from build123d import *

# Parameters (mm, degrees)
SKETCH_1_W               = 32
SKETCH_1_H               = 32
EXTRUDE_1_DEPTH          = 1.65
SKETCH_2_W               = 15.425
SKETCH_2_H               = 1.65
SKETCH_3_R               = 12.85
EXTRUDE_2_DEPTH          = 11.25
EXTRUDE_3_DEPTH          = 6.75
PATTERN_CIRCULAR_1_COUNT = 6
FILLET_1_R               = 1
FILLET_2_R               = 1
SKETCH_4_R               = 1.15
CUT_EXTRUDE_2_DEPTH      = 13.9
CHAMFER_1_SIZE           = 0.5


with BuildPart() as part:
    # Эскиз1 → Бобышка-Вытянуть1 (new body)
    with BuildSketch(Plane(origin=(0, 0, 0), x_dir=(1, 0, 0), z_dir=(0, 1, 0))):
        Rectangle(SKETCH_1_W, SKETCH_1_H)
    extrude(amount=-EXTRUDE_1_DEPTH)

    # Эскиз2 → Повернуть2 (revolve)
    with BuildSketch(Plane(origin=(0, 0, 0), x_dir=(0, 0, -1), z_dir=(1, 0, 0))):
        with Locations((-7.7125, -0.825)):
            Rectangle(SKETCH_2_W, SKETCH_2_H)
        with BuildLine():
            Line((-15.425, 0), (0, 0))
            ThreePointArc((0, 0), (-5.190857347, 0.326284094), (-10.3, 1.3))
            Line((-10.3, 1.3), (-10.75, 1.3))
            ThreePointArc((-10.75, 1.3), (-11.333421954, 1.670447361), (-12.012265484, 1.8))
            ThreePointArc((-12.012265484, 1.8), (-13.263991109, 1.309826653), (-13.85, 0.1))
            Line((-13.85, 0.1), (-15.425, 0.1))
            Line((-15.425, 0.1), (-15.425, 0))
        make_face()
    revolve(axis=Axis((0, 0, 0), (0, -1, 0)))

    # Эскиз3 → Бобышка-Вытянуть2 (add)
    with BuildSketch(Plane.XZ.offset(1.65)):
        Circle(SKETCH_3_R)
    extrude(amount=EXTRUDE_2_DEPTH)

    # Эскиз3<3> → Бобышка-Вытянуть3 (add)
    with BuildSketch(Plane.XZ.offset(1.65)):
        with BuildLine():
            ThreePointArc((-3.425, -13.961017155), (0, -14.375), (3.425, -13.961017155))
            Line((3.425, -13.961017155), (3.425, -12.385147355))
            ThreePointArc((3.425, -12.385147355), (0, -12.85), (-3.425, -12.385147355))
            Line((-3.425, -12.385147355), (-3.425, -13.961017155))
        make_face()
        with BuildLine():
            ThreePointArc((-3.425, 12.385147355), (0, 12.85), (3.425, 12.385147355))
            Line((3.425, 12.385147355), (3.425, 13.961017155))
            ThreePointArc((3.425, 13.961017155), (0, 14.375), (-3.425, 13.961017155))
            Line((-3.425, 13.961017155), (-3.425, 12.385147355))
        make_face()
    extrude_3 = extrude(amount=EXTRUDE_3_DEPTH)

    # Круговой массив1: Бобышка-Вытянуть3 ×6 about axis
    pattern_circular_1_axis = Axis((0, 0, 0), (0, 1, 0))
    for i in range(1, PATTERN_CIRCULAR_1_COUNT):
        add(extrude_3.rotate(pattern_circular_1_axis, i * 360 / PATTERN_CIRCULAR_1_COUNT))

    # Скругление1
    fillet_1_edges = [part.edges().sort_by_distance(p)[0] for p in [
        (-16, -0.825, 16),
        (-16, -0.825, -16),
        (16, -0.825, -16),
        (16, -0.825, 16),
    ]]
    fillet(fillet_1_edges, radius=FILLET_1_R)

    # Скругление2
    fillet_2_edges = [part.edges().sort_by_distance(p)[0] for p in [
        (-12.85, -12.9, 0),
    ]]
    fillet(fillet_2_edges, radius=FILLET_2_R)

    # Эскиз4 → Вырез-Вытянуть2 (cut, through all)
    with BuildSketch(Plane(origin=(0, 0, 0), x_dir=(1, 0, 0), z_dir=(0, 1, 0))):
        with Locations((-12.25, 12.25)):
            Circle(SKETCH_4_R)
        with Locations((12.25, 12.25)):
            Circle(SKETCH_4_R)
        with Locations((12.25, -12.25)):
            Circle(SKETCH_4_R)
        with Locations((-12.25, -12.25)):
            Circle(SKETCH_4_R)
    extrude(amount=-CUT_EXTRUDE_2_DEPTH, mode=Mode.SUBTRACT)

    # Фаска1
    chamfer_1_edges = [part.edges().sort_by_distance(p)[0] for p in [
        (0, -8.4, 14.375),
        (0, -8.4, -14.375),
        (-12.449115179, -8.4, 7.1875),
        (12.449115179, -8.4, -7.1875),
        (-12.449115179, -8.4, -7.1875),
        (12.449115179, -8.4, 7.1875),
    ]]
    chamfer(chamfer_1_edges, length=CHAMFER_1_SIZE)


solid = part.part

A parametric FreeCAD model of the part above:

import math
import FreeCAD as App
import Part
import Sketcher


def edges_at(feature, points):
    """Names of the edges that pass closest to the given points."""
    edges = feature.Shape.Edges
    near = lambda p: min(range(len(edges)), key=lambda i: edges[i].distToShape(Part.Vertex(*p))[0])
    return sorted({f"Edge{near(p) + 1}" for p in points})


def add_polygon(sketch, points):
    """Adds a closed chain of lines whose ends are joined by coincident constraints."""
    first, n = sketch.GeometryCount, len(points)
    for a, b in zip(points, points[1:] + points[:1]):
        sketch.addGeometry(Part.LineSegment(App.Vector(*a, 0), App.Vector(*b, 0)), False)
    for i in range(n):
        sketch.addConstraint(Sketcher.Constraint("Coincident", first + i, 2, first + (i + 1) % n, 1))

doc = App.newDocument("Part")
params = doc.addObject("Spreadsheet::Sheet", "Params")
for row, (alias, value) in enumerate([
    ("sketch1_width", "32 mm"),
    ("pad1_length", "1.65 mm"),
    ("sketch2_width", "1.65 mm"),
    ("sketch2_width2", "1.75 mm"),
    ("sketch2_height", "0.45 mm"),
    ("revolution_angle", "360 deg"),
    ("sketch3_diameter", "25.7 mm"),
    ("pad2_length", "11.25 mm"),
    ("sketch4_radius", "12.85 mm"),
    ("pad3_length", "6.75 mm"),
    ("fillet_radius", "1 mm"),
    ("fillet2_radius", "1 mm"),
    ("sketch5_diameter", "2.3 mm"),
    ("chamfer_size", "0.5 mm"),
], start=1):
    params.set(f"A{row}", alias)
    params.set(f"B{row}", "=" + value)
    params.setAlias(f"B{row}", alias)

body = doc.addObject("PartDesign::Body", "Body")

# Sketch on XZ plane
sketch1 = body.newObject("Sketcher::SketchObject", "Sketch")
sketch1.AttachmentSupport = (doc.getObject("XZ_Plane"), [""])
sketch1.MapMode = "FlatFace"
add_polygon(sketch1, [(-16, -16), (-16, 16), (16, 16), (16, -16)])  # lines 0-3
sketch1.addConstraint([
    Sketcher.Constraint("Vertical", 0),
    Sketcher.Constraint("Horizontal", 1),
    Sketcher.Constraint("Vertical", 2),
    Sketcher.Constraint("Horizontal", 3),
    Sketcher.Constraint("Symmetric", 0, 2, 2, 2, -1, 1),
    Sketcher.Constraint("Equal", 3, 0),
    Sketcher.Constraint("DistanceX", 1, 1, 1, 2, 32.0),
])
sketch1.setExpression("Constraints[10]", "Params.sketch1_width")
pad1 = body.newObject("PartDesign::Pad", "Pad")
pad1.Profile = sketch1
pad1.setExpression("Length", "Params.pad1_length")

# Sketch on YZ plane
sketch2 = body.newObject("Sketcher::SketchObject", "Sketch001")
sketch2.AttachmentSupport = (doc.getObject("YZ_Plane"), [""])
sketch2.MapMode = "FlatFace"
sketch2.addGeometry([
    Part.LineSegment(App.Vector(-1.65, 15.43, 0), App.Vector(-1.65, 0, 0)),  # 0
    Part.LineSegment(App.Vector(-1.65, 0, 0), App.Vector(0, 0, 0)),  # 1
    Part.ArcOfCircle(Part.Circle(App.Vector(41.45, 0, 0), App.Vector(0, 0, 1), 41.45), math.radians(165.61), math.radians(180)),  # 2
    Part.LineSegment(App.Vector(1.3, 10.3, 0), App.Vector(1.3, 10.75, 0)),  # 3
    Part.ArcOfCircle(Part.Circle(App.Vector(-0.04, 12.01, 0), App.Vector(0, 0, 1), 1.84), math.radians(-43), math.radians(0)),  # 4
    Part.ArcOfCircle(Part.Circle(App.Vector(-0.04, 12.01, 0), App.Vector(0, 0, 1), 1.84), math.radians(0), math.radians(86)),  # 5
    Part.LineSegment(App.Vector(0.1, 13.85, 0), App.Vector(0.1, 15.43, 0)),  # 6
    Part.LineSegment(App.Vector(0.1, 15.43, 0), App.Vector(-1.65, 15.43, 0)),  # 7
], False)
sketch2.addConstraint([
    Sketcher.Constraint("Coincident", 0, 2, 1, 1),
    Sketcher.Constraint("Coincident", 1, 2, 2, 2),
    Sketcher.Constraint("Coincident", 2, 1, 3, 1),
    Sketcher.Constraint("Coincident", 3, 2, 4, 1),
    Sketcher.Constraint("Tangent", 4, 2, 5, 1),
    Sketcher.Constraint("Coincident", 5, 2, 6, 1),
    Sketcher.Constraint("Coincident", 6, 2, 7, 1),
    Sketcher.Constraint("Coincident", 7, 2, 0, 1),
    Sketcher.Constraint("Vertical", 0),
    Sketcher.Constraint("Horizontal", 1),
    Sketcher.Constraint("Vertical", 3),
    Sketcher.Constraint("Vertical", 6),
    Sketcher.Constraint("Horizontal", 7),
    Sketcher.Constraint("Coincident", 1, 2, -1, 1),
    Sketcher.Constraint("Equal", 4, 5),
    Sketcher.Constraint("PointOnObject", 2, 3, -1),
    Sketcher.Constraint("Horizontal", 5, 3, 4, 2),
    Sketcher.Constraint("DistanceX", 1, 1, 1, 2, 1.65),
    Sketcher.Constraint("DistanceX", 7, 2, 7, 1, 1.75),
    Sketcher.Constraint("DistanceY", 3, 1, 3, 2, 0.45),
    Sketcher.Constraint("DistanceX", -1, 1, 2, 1, 1.3),
    Sketcher.Constraint("DistanceY", -1, 1, 2, 1, 10.3),
    Sketcher.Constraint("DistanceX", -1, 1, 4, 2, 1.8),
    Sketcher.Constraint("DistanceY", 3, 2, 5, 2, 3.1),
    Sketcher.Constraint("DistanceY", 0, 2, 0, 1, 15.425),
])
sketch2.setExpression("Constraints[17]", "Params.sketch2_width")
sketch2.setExpression("Constraints[18]", "Params.sketch2_width2")
sketch2.setExpression("Constraints[19]", "Params.sketch2_height")
revolution = body.newObject("PartDesign::Revolution", "Revolution")
revolution.Profile = sketch2
revolution.ReferenceAxis = (sketch2, ["H_Axis"])
revolution.setExpression("Angle", "Params.revolution_angle")

# Sketch on XZ plane
sketch3 = body.newObject("Sketcher::SketchObject", "Sketch002")
sketch3.AttachmentSupport = (doc.getObject("XZ_Plane"), [""])
sketch3.MapMode = "FlatFace"
sketch3.AttachmentOffset = App.Placement(App.Vector(0, 0, 1.65), App.Rotation())
sketch3.addGeometry(Part.Circle(App.Vector(0, 0, 0), App.Vector(0, 0, 1), 13), False)
sketch3.addConstraint([
    Sketcher.Constraint("Coincident", 0, 3, -1, 1),
    Sketcher.Constraint("Diameter", 0, 25.7),
])
sketch3.setExpression("Constraints[1]", "Params.sketch3_diameter")
pad2 = body.newObject("PartDesign::Pad", "Pad001")
pad2.Profile = sketch3
pad2.setExpression("Length", "Params.pad2_length")

# Sketch on XZ plane
sketch4 = body.newObject("Sketcher::SketchObject", "Sketch003")
sketch4.AttachmentSupport = (doc.getObject("XZ_Plane"), [""])
sketch4.MapMode = "FlatFace"
sketch4.AttachmentOffset = App.Placement(App.Vector(0, 0, 1.65), App.Rotation())
sketch4.addGeometry([
    Part.ArcOfCircle(Part.Circle(App.Vector(0, 0, 0), App.Vector(0, 0, 1), 14.4), math.radians(-104), math.radians(-76)),  # 0
    Part.LineSegment(App.Vector(3.4, -14, 0), App.Vector(3.4, -12.4, 0)),  # 1
    Part.ArcOfCircle(Part.Circle(App.Vector(0, 0, 0), App.Vector(0, 0, 1), 12.9), math.radians(-105), math.radians(-75)),  # 2
    Part.LineSegment(App.Vector(-3.4, -12.4, 0), App.Vector(-3.4, -14, 0)),  # 3
    Part.ArcOfCircle(Part.Circle(App.Vector(0, 0, 0), App.Vector(0, 0, 1), 12.9), math.radians(75), math.radians(105)),  # 4
    Part.LineSegment(App.Vector(3.4, 12.4, 0), App.Vector(3.4, 14, 0)),  # 5
    Part.ArcOfCircle(Part.Circle(App.Vector(0, 0, 0), App.Vector(0, 0, 1), 14.4), math.radians(76), math.radians(104)),  # 6
    Part.LineSegment(App.Vector(-3.4, 14, 0), App.Vector(-3.4, 12.4, 0)),  # 7
], False)
sketch4.addConstraint([
    Sketcher.Constraint("Coincident", 0, 2, 1, 1),
    Sketcher.Constraint("Coincident", 1, 2, 2, 2),
    Sketcher.Constraint("Coincident", 2, 1, 3, 1),
    Sketcher.Constraint("Coincident", 3, 2, 0, 1),
    Sketcher.Constraint("Coincident", 4, 1, 5, 1),
    Sketcher.Constraint("Coincident", 5, 2, 6, 1),
    Sketcher.Constraint("Coincident", 6, 2, 7, 1),
    Sketcher.Constraint("Coincident", 7, 2, 4, 2),
    Sketcher.Constraint("Vertical", 1),
    Sketcher.Constraint("Vertical", 3),
    Sketcher.Constraint("Vertical", 5),
    Sketcher.Constraint("Vertical", 7),
    Sketcher.Constraint("Coincident", 0, 3, -1, 1),
    Sketcher.Constraint("Coincident", 2, 3, -1, 1),
    Sketcher.Constraint("Coincident", 4, 3, -1, 1),
    Sketcher.Constraint("Coincident", 6, 3, -1, 1),
    Sketcher.Constraint("Equal", 2, 4),
    Sketcher.Constraint("Equal", 0, 6),
    Sketcher.Constraint("Horizontal", 1, 2, 2, 1),
    Sketcher.Constraint("Horizontal", 5, 2, 6, 2),
    Sketcher.Constraint("Vertical", 1, 2, 4, 1),
    Sketcher.Constraint("Radius", 2, 12.85),
    Sketcher.Constraint("Radius", 0, 14.375),
    Sketcher.Constraint("DistanceX", 2, 1, 1, 2, 6.85),
])
sketch4.setExpression("Constraints[21]", "Params.sketch4_radius")
pad3 = body.newObject("PartDesign::Pad", "Pad002")
pad3.Profile = sketch4
pad3.setExpression("Length", "Params.pad3_length")
doc.recompute()

polarpattern = body.newObject("PartDesign::PolarPattern", "PolarPattern")
polarpattern.Originals = [pad3]
polarpattern.Axis = (doc.getObject("Y_Axis"), [""])
polarpattern.Angle = 360
polarpattern.Occurrences = 6
body.Tip = polarpattern
doc.recompute()

fillet = body.newObject("PartDesign::Fillet", "Fillet")
fillet.Base = (polarpattern, edges_at(polarpattern, [
    (-16, -0.825, 16),
    (-16, -0.825, -16),
    (16, -0.825, -16),
    (16, -0.825, 16),
]))
fillet.setExpression("Radius", "Params.fillet_radius")
doc.recompute()

fillet2 = body.newObject("PartDesign::Fillet", "Fillet001")
fillet2.Base = (fillet, edges_at(fillet, [(-12.85, -12.9, 0)]))
fillet2.setExpression("Radius", "Params.fillet2_radius")

# Sketch on XZ plane
sketch5 = body.newObject("Sketcher::SketchObject", "Sketch004")
sketch5.AttachmentSupport = (doc.getObject("XZ_Plane"), [""])
sketch5.MapMode = "FlatFace"
sketch5.addGeometry([
    Part.Circle(App.Vector(-12.2, -12.2, 0), App.Vector(0, 0, 1), 1.1),
    Part.Circle(App.Vector(12.2, -12.2, 0), App.Vector(0, 0, 1), 1.1),
    Part.Circle(App.Vector(12.2, 12.2, 0), App.Vector(0, 0, 1), 1.1),
    Part.Circle(App.Vector(-12.2, 12.2, 0), App.Vector(0, 0, 1), 1.1),
], False)
sketch5.addConstraint([
    Sketcher.Constraint("Equal", 0, 1),
    Sketcher.Constraint("Equal", 1, 2),
    Sketcher.Constraint("Equal", 2, 3),
    Sketcher.Constraint("Symmetric", 0, 3, 2, 3, -1, 1),
    Sketcher.Constraint("Symmetric", 1, 3, 3, 3, -1, 1),
    Sketcher.Constraint("Symmetric", 0, 3, 1, 3, -2),
    Sketcher.Constraint("Diameter", 0, 2.3),
    Sketcher.Constraint("DistanceX", 0, 3, 1, 3, 24.5),
    Sketcher.Constraint("DistanceY", 1, 3, 2, 3, 24.5),
])
sketch5.setExpression("Constraints[6]", "Params.sketch5_diameter")
pocket1 = body.newObject("PartDesign::Pocket", "Pocket")
pocket1.Profile = sketch5
pocket1.Type = "ThroughAll"
pocket1.Reversed = True
doc.recompute()

chamfer = body.newObject("PartDesign::Chamfer", "Chamfer")
chamfer.Base = (pocket1, edges_at(pocket1, [
    (0, -8.4, 14.375),
    (0, -8.4, -14.375),
    (-12.449, -8.4, 7.188),
    (12.449, -8.4, -7.188),
    (-12.449, -8.4, -7.188),
    (12.449, -8.4, 7.188),
]))
chamfer.setExpression("Size", "Params.chamfer_size")

doc.recompute()
